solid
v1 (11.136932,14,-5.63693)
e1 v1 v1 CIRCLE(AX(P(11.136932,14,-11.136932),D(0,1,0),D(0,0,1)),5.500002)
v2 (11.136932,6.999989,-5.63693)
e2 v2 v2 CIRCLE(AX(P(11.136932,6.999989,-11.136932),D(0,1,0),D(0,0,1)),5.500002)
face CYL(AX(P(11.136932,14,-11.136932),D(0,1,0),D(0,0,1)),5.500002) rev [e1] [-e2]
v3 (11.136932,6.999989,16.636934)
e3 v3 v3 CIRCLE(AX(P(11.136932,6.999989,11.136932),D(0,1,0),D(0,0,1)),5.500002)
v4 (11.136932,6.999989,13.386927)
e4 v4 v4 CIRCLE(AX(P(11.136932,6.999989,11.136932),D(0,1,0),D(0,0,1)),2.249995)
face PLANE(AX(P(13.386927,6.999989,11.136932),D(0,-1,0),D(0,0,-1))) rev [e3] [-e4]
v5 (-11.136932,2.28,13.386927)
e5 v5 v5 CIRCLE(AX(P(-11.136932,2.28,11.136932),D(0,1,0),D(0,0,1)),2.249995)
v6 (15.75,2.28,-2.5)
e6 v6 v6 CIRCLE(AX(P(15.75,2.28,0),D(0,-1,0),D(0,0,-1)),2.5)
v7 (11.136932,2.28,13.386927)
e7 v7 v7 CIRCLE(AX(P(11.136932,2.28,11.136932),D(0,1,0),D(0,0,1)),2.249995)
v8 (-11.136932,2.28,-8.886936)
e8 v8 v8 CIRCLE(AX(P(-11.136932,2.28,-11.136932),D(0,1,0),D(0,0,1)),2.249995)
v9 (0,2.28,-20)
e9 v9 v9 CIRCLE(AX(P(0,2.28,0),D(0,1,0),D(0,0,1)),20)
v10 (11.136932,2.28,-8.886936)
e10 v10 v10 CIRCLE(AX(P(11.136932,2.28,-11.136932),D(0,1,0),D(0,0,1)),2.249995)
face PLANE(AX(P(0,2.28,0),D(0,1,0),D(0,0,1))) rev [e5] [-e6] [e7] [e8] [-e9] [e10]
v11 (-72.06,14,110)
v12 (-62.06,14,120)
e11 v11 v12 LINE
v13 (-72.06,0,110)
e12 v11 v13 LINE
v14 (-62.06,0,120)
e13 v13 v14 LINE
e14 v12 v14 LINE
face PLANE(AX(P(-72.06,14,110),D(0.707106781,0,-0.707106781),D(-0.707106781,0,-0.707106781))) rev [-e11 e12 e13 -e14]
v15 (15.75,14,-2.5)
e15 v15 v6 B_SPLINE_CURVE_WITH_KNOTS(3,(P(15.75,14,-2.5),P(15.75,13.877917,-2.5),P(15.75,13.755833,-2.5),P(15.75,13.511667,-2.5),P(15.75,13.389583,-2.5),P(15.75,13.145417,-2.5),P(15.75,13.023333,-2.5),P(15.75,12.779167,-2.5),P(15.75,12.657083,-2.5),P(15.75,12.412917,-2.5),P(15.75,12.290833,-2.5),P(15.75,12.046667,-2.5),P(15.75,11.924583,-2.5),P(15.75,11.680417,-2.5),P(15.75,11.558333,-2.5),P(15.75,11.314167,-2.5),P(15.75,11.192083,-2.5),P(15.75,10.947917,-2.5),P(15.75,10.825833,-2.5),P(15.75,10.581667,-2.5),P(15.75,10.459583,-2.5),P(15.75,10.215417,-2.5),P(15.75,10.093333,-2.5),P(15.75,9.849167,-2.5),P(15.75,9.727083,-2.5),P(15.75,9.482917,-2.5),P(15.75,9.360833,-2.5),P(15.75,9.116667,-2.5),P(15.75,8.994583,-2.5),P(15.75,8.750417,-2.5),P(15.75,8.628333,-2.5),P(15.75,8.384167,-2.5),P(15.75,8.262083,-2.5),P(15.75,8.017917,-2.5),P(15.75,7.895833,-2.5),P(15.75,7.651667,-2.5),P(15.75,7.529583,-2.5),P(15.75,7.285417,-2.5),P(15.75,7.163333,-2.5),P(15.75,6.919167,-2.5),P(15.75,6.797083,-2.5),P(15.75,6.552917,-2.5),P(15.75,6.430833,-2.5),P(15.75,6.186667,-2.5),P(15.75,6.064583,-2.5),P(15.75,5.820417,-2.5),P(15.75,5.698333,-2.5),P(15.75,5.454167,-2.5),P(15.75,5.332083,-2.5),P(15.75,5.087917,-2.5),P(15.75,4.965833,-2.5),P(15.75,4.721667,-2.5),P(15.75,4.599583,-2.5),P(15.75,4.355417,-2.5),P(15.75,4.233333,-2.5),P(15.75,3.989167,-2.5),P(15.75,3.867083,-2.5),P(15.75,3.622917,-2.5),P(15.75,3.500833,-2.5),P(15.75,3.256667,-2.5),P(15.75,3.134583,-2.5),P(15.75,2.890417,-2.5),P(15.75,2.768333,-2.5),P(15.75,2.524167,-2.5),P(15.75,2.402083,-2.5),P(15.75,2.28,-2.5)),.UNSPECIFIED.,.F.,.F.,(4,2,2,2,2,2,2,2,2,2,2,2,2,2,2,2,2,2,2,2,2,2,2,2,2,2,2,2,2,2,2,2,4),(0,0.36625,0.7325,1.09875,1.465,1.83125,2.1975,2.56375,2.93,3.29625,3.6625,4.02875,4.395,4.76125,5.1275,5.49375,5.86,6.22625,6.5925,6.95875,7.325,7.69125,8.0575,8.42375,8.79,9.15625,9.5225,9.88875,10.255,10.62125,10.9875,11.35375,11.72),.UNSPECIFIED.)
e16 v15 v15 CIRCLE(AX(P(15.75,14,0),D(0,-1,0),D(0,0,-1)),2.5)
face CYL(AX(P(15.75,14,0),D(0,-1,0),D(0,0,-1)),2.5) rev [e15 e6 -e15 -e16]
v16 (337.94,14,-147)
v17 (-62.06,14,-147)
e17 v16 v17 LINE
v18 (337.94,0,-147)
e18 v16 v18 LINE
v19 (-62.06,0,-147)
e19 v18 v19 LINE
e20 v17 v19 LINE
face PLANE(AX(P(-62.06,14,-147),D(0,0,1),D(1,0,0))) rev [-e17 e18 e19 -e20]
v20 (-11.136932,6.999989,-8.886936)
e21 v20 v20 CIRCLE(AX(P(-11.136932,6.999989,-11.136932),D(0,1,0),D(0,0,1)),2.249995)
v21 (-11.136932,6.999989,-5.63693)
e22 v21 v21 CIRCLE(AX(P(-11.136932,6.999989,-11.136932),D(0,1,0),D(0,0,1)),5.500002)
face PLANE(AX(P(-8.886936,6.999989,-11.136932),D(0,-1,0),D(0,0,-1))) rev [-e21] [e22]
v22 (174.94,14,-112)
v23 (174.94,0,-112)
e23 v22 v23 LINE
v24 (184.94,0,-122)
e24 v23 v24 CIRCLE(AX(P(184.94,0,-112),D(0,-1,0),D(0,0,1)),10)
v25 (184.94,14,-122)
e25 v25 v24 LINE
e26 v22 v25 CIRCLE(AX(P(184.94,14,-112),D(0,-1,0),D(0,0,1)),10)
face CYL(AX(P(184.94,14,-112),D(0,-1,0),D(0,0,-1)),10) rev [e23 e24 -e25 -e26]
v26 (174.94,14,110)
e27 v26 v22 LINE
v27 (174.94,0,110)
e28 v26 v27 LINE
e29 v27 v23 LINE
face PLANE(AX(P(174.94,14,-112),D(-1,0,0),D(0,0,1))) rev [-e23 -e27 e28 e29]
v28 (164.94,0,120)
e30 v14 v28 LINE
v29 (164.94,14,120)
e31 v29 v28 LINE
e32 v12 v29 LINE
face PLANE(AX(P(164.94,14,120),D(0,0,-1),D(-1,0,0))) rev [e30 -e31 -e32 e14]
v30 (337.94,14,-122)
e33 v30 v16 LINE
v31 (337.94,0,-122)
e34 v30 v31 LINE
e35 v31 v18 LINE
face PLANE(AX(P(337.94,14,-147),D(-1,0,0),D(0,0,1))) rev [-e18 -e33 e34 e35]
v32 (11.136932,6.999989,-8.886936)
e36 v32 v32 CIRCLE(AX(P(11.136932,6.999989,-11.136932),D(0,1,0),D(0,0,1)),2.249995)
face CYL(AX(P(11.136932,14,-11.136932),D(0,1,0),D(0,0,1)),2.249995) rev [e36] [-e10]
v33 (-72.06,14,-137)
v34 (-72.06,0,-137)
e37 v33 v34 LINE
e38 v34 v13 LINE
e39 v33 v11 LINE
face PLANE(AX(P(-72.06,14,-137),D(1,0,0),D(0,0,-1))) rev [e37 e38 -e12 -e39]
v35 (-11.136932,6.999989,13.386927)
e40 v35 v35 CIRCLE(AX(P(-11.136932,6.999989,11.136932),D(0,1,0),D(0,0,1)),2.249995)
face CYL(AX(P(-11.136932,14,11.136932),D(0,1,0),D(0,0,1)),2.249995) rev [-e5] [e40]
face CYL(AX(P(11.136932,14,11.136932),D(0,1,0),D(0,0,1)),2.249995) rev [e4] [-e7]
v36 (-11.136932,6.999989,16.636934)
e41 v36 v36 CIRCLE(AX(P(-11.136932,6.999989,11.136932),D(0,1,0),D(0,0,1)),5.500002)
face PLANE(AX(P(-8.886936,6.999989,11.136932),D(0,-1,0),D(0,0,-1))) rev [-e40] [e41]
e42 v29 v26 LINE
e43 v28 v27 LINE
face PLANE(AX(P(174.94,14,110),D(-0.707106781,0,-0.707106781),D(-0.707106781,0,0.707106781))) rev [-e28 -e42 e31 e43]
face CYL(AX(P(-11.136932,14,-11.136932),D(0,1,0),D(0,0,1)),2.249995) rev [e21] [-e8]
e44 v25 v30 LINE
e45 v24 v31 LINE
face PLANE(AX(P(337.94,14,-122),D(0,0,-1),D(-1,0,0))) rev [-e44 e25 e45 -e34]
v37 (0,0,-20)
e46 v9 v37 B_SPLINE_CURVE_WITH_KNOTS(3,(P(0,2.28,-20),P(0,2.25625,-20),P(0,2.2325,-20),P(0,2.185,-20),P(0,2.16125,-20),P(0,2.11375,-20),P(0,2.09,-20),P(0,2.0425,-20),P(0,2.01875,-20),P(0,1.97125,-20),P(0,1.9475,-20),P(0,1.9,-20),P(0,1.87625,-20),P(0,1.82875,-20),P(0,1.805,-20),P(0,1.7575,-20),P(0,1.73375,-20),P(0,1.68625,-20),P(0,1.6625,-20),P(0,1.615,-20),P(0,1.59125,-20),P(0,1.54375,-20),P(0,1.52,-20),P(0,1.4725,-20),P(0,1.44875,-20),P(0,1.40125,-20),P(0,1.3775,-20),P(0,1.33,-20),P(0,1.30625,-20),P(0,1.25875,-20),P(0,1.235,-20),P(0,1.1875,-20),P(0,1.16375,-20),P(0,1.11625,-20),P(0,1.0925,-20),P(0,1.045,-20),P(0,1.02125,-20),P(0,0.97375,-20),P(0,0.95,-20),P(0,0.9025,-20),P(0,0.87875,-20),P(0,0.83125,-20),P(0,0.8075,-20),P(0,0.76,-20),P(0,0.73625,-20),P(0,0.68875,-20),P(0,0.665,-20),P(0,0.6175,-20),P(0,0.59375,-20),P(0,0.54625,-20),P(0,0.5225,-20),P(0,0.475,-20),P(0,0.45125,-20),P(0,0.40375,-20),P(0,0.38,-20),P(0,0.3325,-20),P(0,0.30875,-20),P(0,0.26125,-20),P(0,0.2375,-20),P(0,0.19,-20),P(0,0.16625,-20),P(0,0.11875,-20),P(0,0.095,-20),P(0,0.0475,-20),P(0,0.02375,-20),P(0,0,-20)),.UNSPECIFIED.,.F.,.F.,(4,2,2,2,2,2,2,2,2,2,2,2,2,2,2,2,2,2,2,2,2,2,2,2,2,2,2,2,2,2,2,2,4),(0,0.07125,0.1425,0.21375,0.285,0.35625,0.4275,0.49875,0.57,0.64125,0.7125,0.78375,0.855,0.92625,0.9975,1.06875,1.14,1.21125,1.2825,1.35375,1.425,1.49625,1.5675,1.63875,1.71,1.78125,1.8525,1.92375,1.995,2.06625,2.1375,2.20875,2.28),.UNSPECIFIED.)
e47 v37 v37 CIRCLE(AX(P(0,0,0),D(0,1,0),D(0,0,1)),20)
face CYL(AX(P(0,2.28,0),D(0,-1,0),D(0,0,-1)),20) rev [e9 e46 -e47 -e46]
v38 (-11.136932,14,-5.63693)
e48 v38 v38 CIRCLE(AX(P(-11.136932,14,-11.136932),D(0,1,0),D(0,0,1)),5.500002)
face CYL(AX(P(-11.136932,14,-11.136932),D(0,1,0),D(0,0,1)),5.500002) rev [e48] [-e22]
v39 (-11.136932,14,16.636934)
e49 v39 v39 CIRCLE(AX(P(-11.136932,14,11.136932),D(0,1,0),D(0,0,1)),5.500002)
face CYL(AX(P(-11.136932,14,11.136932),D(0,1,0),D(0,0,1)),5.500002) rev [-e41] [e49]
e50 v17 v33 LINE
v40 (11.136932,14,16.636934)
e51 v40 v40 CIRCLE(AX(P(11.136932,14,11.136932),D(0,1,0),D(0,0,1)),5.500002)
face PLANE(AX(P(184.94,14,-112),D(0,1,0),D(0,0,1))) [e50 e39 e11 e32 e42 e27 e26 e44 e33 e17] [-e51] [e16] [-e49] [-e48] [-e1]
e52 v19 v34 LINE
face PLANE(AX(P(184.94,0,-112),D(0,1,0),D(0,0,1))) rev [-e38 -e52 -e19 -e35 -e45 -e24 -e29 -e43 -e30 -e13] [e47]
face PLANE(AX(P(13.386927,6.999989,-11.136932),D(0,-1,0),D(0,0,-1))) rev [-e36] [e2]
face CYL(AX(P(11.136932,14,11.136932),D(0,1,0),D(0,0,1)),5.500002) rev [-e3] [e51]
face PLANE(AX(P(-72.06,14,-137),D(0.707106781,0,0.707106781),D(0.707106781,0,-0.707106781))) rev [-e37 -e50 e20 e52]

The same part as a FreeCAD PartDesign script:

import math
import FreeCAD as App
import Part
import Sketcher
from FreeCAD import Vector

doc = App.newDocument("Part")
body = doc.addObject("PartDesign::Body", "Body")

# Sketch on XZ plane
sketch1 = body.newObject("Sketcher::SketchObject", "Sketch")
sketch1.AttachmentSupport = (doc.getObject("XZ_Plane"), [""])
sketch1.MapMode = "FlatFace"
sketch1.addGeometry([
    Part.LineSegment(Vector(338, -122, 0), Vector(338, -147, 0)),  # 0
    Part.LineSegment(Vector(338, -147, 0), Vector(-62, -147, 0)),  # 1
    Part.LineSegment(Vector(-62, -147, 0), Vector(-72, -137, 0)),  # 2
    Part.LineSegment(Vector(-72, -137, 0), Vector(-72, 110, 0)),  # 3
    Part.LineSegment(Vector(-72, 110, 0), Vector(-62, 120, 0)),  # 4
    Part.LineSegment(Vector(-62, 120, 0), Vector(165, 120, 0)),  # 5
    Part.LineSegment(Vector(165, 120, 0), Vector(175, 110, 0)),  # 6
    Part.LineSegment(Vector(175, 110, 0), Vector(175, -112, 0)),  # 7
    Part.ArcOfCircle(Part.Circle(Vector(185, -112, 0), Vector(0, 0, 1), 10), math.radians(180), math.radians(270)),  # 8
    Part.LineSegment(Vector(185, -122, 0), Vector(338, -122, 0)),  # 9
], False)
sketch1.addConstraint([
    Sketcher.Constraint("Coincident", 0, 2, 1, 1),
    Sketcher.Constraint("Coincident", 1, 2, 2, 1),
    Sketcher.Constraint("Coincident", 2, 2, 3, 1),
    Sketcher.Constraint("Coincident", 3, 2, 4, 1),
    Sketcher.Constraint("Coincident", 4, 2, 5, 1),
    Sketcher.Constraint("Coincident", 5, 2, 6, 1),
    Sketcher.Constraint("Coincident", 6, 2, 7, 1),
    Sketcher.Constraint("Tangent", 7, 2, 8, 1),
    Sketcher.Constraint("Tangent", 8, 2, 9, 1),
    Sketcher.Constraint("Coincident", 9, 2, 0, 1),
    Sketcher.Constraint("Vertical", 0),
    Sketcher.Constraint("Horizontal", 1),
    Sketcher.Constraint("Vertical", 3),
    Sketcher.Constraint("Horizontal", 5),
    Sketcher.Constraint("Vertical", 7),
    Sketcher.Constraint("Horizontal", 9),
    Sketcher.Constraint("Perpendicular", 2, 4),
    Sketcher.Constraint("Perpendicular", 4, 6),
    Sketcher.Constraint("Horizontal", 3, 2, 6, 2),
    Sketcher.Constraint("Vertical", 1, 2, 4, 2),
    Sketcher.Constraint("Equal", 2, 4),
    Sketcher.Constraint("Radius", 8, 10.0),
    Sketcher.Constraint("DistanceX", 1, 2, 1, 1, 400.0),
    Sketcher.Constraint("DistanceX", 5, 1, 5, 2, 227.0),
    Sketcher.Constraint("DistanceX", 9, 1, 9, 2, 153.0),
    Sketcher.Constraint("DistanceY", 0, 2, 0, 1, 25.0),
    Sketcher.Constraint("DistanceY", 3, 1, 3, 2, 247.0),
    Sketcher.Constraint("DistanceY", 8, 3, -1, 1, 112.0),
    Sketcher.Constraint("DistanceX", -1, 1, 8, 3, 184.94),
])
pad1 = body.newObject("PartDesign::Pad", "Pad")
pad1.Profile = sketch1
pad1.Length = 14
pad1.Reversed = True

# Sketch on XZ plane
sketch2 = body.newObject("Sketcher::SketchObject", "Sketch001")
sketch2.AttachmentSupport = (doc.getObject("XZ_Plane"), [""])
sketch2.MapMode = "FlatFace"
sketch2.addGeometry(Part.Circle(Vector(0, 0, 0), Vector(0, 0, 1), 20), False)
sketch2.addConstraint([
    Sketcher.Constraint("Coincident", 0, 3, -1, 1),
    Sketcher.Constraint("Diameter", 0, 40.0),
])
pocket1 = body.newObject("PartDesign::Pocket", "Pocket")
pocket1.Profile = sketch2
pocket1.Length = 2.28

# Sketch on XZ plane
sketch3 = body.newObject("Sketcher::SketchObject", "Sketch002")
sketch3.AttachmentSupport = (doc.getObject("XZ_Plane"), [""])
sketch3.MapMode = "FlatFace"
sketch3.AttachmentOffset = App.Placement(Vector(0, 0, -14), App.Rotation())
sketch3.addGeometry([
    Part.Circle(Vector(-11.1, 11.1, 0), Vector(0, 0, 1), 2.2),
    Part.Circle(Vector(11.1, 11.1, 0), Vector(0, 0, 1), 2.2),
    Part.Circle(Vector(11.1, -11.1, 0), Vector(0, 0, 1), 2.2),
    Part.Circle(Vector(-11.1, -11.1, 0), Vector(0, 0, 1), 2.2),
], False)
sketch3.addConstraint([
    Sketcher.Constraint("Equal", 0, 1),
    Sketcher.Constraint("Equal", 1, 2),
    Sketcher.Constraint("Equal", 2, 3),
    Sketcher.Constraint("Symmetric", 0, 3, 2, 3, -1, 1),
    Sketcher.Constraint("Symmetric", 1, 3, 3, 3, -1, 1),
    Sketcher.Constraint("Symmetric", 0, 3, 1, 3, -2),
    Sketcher.Constraint("Diameter", 0, 4.499991),
    Sketcher.Constraint("DistanceX", 0, 3, -1, 1, 11.136932),
    Sketcher.Constraint("DistanceY", -1, 1, 0, 3, 11.136932),
])
doc.recompute()
hole = body.newObject("PartDesign::Hole", "Hole")
hole.Profile = sketch3
hole.ThreadType = "None"
hole.Diameter = 4.499991
hole.DepthType = "ThroughAll"
hole.HoleCutType = "Counterbore"
hole.HoleCutDiameter = 11.000003
hole.HoleCutDepth = 7.000011
hole.Reversed = True

# Sketch on XZ plane
sketch4 = body.newObject("Sketcher::SketchObject", "Sketch003")
sketch4.AttachmentSupport = (doc.getObject("XZ_Plane"), [""])
sketch4.MapMode = "FlatFace"
sketch4.AttachmentOffset = App.Placement(Vector(0, 0, -2.28), App.Rotation())
sketch4.addGeometry(Part.Circle(Vector(15.8, 0, 0), Vector(0, 0, 1), 2.5), False)
sketch4.addConstraint([
    Sketcher.Constraint("PointOnObject", 0, 3, -1),
    Sketcher.Constraint("Diameter", 0, 5.0),
    Sketcher.Constraint("DistanceX", -1, 1, 0, 3, 15.75),
])
pocket2 = body.newObject("PartDesign::Pocket", "Pocket001")
pocket2.Profile = sketch4
pocket2.Type = "ThroughAll"

doc.recompute()
